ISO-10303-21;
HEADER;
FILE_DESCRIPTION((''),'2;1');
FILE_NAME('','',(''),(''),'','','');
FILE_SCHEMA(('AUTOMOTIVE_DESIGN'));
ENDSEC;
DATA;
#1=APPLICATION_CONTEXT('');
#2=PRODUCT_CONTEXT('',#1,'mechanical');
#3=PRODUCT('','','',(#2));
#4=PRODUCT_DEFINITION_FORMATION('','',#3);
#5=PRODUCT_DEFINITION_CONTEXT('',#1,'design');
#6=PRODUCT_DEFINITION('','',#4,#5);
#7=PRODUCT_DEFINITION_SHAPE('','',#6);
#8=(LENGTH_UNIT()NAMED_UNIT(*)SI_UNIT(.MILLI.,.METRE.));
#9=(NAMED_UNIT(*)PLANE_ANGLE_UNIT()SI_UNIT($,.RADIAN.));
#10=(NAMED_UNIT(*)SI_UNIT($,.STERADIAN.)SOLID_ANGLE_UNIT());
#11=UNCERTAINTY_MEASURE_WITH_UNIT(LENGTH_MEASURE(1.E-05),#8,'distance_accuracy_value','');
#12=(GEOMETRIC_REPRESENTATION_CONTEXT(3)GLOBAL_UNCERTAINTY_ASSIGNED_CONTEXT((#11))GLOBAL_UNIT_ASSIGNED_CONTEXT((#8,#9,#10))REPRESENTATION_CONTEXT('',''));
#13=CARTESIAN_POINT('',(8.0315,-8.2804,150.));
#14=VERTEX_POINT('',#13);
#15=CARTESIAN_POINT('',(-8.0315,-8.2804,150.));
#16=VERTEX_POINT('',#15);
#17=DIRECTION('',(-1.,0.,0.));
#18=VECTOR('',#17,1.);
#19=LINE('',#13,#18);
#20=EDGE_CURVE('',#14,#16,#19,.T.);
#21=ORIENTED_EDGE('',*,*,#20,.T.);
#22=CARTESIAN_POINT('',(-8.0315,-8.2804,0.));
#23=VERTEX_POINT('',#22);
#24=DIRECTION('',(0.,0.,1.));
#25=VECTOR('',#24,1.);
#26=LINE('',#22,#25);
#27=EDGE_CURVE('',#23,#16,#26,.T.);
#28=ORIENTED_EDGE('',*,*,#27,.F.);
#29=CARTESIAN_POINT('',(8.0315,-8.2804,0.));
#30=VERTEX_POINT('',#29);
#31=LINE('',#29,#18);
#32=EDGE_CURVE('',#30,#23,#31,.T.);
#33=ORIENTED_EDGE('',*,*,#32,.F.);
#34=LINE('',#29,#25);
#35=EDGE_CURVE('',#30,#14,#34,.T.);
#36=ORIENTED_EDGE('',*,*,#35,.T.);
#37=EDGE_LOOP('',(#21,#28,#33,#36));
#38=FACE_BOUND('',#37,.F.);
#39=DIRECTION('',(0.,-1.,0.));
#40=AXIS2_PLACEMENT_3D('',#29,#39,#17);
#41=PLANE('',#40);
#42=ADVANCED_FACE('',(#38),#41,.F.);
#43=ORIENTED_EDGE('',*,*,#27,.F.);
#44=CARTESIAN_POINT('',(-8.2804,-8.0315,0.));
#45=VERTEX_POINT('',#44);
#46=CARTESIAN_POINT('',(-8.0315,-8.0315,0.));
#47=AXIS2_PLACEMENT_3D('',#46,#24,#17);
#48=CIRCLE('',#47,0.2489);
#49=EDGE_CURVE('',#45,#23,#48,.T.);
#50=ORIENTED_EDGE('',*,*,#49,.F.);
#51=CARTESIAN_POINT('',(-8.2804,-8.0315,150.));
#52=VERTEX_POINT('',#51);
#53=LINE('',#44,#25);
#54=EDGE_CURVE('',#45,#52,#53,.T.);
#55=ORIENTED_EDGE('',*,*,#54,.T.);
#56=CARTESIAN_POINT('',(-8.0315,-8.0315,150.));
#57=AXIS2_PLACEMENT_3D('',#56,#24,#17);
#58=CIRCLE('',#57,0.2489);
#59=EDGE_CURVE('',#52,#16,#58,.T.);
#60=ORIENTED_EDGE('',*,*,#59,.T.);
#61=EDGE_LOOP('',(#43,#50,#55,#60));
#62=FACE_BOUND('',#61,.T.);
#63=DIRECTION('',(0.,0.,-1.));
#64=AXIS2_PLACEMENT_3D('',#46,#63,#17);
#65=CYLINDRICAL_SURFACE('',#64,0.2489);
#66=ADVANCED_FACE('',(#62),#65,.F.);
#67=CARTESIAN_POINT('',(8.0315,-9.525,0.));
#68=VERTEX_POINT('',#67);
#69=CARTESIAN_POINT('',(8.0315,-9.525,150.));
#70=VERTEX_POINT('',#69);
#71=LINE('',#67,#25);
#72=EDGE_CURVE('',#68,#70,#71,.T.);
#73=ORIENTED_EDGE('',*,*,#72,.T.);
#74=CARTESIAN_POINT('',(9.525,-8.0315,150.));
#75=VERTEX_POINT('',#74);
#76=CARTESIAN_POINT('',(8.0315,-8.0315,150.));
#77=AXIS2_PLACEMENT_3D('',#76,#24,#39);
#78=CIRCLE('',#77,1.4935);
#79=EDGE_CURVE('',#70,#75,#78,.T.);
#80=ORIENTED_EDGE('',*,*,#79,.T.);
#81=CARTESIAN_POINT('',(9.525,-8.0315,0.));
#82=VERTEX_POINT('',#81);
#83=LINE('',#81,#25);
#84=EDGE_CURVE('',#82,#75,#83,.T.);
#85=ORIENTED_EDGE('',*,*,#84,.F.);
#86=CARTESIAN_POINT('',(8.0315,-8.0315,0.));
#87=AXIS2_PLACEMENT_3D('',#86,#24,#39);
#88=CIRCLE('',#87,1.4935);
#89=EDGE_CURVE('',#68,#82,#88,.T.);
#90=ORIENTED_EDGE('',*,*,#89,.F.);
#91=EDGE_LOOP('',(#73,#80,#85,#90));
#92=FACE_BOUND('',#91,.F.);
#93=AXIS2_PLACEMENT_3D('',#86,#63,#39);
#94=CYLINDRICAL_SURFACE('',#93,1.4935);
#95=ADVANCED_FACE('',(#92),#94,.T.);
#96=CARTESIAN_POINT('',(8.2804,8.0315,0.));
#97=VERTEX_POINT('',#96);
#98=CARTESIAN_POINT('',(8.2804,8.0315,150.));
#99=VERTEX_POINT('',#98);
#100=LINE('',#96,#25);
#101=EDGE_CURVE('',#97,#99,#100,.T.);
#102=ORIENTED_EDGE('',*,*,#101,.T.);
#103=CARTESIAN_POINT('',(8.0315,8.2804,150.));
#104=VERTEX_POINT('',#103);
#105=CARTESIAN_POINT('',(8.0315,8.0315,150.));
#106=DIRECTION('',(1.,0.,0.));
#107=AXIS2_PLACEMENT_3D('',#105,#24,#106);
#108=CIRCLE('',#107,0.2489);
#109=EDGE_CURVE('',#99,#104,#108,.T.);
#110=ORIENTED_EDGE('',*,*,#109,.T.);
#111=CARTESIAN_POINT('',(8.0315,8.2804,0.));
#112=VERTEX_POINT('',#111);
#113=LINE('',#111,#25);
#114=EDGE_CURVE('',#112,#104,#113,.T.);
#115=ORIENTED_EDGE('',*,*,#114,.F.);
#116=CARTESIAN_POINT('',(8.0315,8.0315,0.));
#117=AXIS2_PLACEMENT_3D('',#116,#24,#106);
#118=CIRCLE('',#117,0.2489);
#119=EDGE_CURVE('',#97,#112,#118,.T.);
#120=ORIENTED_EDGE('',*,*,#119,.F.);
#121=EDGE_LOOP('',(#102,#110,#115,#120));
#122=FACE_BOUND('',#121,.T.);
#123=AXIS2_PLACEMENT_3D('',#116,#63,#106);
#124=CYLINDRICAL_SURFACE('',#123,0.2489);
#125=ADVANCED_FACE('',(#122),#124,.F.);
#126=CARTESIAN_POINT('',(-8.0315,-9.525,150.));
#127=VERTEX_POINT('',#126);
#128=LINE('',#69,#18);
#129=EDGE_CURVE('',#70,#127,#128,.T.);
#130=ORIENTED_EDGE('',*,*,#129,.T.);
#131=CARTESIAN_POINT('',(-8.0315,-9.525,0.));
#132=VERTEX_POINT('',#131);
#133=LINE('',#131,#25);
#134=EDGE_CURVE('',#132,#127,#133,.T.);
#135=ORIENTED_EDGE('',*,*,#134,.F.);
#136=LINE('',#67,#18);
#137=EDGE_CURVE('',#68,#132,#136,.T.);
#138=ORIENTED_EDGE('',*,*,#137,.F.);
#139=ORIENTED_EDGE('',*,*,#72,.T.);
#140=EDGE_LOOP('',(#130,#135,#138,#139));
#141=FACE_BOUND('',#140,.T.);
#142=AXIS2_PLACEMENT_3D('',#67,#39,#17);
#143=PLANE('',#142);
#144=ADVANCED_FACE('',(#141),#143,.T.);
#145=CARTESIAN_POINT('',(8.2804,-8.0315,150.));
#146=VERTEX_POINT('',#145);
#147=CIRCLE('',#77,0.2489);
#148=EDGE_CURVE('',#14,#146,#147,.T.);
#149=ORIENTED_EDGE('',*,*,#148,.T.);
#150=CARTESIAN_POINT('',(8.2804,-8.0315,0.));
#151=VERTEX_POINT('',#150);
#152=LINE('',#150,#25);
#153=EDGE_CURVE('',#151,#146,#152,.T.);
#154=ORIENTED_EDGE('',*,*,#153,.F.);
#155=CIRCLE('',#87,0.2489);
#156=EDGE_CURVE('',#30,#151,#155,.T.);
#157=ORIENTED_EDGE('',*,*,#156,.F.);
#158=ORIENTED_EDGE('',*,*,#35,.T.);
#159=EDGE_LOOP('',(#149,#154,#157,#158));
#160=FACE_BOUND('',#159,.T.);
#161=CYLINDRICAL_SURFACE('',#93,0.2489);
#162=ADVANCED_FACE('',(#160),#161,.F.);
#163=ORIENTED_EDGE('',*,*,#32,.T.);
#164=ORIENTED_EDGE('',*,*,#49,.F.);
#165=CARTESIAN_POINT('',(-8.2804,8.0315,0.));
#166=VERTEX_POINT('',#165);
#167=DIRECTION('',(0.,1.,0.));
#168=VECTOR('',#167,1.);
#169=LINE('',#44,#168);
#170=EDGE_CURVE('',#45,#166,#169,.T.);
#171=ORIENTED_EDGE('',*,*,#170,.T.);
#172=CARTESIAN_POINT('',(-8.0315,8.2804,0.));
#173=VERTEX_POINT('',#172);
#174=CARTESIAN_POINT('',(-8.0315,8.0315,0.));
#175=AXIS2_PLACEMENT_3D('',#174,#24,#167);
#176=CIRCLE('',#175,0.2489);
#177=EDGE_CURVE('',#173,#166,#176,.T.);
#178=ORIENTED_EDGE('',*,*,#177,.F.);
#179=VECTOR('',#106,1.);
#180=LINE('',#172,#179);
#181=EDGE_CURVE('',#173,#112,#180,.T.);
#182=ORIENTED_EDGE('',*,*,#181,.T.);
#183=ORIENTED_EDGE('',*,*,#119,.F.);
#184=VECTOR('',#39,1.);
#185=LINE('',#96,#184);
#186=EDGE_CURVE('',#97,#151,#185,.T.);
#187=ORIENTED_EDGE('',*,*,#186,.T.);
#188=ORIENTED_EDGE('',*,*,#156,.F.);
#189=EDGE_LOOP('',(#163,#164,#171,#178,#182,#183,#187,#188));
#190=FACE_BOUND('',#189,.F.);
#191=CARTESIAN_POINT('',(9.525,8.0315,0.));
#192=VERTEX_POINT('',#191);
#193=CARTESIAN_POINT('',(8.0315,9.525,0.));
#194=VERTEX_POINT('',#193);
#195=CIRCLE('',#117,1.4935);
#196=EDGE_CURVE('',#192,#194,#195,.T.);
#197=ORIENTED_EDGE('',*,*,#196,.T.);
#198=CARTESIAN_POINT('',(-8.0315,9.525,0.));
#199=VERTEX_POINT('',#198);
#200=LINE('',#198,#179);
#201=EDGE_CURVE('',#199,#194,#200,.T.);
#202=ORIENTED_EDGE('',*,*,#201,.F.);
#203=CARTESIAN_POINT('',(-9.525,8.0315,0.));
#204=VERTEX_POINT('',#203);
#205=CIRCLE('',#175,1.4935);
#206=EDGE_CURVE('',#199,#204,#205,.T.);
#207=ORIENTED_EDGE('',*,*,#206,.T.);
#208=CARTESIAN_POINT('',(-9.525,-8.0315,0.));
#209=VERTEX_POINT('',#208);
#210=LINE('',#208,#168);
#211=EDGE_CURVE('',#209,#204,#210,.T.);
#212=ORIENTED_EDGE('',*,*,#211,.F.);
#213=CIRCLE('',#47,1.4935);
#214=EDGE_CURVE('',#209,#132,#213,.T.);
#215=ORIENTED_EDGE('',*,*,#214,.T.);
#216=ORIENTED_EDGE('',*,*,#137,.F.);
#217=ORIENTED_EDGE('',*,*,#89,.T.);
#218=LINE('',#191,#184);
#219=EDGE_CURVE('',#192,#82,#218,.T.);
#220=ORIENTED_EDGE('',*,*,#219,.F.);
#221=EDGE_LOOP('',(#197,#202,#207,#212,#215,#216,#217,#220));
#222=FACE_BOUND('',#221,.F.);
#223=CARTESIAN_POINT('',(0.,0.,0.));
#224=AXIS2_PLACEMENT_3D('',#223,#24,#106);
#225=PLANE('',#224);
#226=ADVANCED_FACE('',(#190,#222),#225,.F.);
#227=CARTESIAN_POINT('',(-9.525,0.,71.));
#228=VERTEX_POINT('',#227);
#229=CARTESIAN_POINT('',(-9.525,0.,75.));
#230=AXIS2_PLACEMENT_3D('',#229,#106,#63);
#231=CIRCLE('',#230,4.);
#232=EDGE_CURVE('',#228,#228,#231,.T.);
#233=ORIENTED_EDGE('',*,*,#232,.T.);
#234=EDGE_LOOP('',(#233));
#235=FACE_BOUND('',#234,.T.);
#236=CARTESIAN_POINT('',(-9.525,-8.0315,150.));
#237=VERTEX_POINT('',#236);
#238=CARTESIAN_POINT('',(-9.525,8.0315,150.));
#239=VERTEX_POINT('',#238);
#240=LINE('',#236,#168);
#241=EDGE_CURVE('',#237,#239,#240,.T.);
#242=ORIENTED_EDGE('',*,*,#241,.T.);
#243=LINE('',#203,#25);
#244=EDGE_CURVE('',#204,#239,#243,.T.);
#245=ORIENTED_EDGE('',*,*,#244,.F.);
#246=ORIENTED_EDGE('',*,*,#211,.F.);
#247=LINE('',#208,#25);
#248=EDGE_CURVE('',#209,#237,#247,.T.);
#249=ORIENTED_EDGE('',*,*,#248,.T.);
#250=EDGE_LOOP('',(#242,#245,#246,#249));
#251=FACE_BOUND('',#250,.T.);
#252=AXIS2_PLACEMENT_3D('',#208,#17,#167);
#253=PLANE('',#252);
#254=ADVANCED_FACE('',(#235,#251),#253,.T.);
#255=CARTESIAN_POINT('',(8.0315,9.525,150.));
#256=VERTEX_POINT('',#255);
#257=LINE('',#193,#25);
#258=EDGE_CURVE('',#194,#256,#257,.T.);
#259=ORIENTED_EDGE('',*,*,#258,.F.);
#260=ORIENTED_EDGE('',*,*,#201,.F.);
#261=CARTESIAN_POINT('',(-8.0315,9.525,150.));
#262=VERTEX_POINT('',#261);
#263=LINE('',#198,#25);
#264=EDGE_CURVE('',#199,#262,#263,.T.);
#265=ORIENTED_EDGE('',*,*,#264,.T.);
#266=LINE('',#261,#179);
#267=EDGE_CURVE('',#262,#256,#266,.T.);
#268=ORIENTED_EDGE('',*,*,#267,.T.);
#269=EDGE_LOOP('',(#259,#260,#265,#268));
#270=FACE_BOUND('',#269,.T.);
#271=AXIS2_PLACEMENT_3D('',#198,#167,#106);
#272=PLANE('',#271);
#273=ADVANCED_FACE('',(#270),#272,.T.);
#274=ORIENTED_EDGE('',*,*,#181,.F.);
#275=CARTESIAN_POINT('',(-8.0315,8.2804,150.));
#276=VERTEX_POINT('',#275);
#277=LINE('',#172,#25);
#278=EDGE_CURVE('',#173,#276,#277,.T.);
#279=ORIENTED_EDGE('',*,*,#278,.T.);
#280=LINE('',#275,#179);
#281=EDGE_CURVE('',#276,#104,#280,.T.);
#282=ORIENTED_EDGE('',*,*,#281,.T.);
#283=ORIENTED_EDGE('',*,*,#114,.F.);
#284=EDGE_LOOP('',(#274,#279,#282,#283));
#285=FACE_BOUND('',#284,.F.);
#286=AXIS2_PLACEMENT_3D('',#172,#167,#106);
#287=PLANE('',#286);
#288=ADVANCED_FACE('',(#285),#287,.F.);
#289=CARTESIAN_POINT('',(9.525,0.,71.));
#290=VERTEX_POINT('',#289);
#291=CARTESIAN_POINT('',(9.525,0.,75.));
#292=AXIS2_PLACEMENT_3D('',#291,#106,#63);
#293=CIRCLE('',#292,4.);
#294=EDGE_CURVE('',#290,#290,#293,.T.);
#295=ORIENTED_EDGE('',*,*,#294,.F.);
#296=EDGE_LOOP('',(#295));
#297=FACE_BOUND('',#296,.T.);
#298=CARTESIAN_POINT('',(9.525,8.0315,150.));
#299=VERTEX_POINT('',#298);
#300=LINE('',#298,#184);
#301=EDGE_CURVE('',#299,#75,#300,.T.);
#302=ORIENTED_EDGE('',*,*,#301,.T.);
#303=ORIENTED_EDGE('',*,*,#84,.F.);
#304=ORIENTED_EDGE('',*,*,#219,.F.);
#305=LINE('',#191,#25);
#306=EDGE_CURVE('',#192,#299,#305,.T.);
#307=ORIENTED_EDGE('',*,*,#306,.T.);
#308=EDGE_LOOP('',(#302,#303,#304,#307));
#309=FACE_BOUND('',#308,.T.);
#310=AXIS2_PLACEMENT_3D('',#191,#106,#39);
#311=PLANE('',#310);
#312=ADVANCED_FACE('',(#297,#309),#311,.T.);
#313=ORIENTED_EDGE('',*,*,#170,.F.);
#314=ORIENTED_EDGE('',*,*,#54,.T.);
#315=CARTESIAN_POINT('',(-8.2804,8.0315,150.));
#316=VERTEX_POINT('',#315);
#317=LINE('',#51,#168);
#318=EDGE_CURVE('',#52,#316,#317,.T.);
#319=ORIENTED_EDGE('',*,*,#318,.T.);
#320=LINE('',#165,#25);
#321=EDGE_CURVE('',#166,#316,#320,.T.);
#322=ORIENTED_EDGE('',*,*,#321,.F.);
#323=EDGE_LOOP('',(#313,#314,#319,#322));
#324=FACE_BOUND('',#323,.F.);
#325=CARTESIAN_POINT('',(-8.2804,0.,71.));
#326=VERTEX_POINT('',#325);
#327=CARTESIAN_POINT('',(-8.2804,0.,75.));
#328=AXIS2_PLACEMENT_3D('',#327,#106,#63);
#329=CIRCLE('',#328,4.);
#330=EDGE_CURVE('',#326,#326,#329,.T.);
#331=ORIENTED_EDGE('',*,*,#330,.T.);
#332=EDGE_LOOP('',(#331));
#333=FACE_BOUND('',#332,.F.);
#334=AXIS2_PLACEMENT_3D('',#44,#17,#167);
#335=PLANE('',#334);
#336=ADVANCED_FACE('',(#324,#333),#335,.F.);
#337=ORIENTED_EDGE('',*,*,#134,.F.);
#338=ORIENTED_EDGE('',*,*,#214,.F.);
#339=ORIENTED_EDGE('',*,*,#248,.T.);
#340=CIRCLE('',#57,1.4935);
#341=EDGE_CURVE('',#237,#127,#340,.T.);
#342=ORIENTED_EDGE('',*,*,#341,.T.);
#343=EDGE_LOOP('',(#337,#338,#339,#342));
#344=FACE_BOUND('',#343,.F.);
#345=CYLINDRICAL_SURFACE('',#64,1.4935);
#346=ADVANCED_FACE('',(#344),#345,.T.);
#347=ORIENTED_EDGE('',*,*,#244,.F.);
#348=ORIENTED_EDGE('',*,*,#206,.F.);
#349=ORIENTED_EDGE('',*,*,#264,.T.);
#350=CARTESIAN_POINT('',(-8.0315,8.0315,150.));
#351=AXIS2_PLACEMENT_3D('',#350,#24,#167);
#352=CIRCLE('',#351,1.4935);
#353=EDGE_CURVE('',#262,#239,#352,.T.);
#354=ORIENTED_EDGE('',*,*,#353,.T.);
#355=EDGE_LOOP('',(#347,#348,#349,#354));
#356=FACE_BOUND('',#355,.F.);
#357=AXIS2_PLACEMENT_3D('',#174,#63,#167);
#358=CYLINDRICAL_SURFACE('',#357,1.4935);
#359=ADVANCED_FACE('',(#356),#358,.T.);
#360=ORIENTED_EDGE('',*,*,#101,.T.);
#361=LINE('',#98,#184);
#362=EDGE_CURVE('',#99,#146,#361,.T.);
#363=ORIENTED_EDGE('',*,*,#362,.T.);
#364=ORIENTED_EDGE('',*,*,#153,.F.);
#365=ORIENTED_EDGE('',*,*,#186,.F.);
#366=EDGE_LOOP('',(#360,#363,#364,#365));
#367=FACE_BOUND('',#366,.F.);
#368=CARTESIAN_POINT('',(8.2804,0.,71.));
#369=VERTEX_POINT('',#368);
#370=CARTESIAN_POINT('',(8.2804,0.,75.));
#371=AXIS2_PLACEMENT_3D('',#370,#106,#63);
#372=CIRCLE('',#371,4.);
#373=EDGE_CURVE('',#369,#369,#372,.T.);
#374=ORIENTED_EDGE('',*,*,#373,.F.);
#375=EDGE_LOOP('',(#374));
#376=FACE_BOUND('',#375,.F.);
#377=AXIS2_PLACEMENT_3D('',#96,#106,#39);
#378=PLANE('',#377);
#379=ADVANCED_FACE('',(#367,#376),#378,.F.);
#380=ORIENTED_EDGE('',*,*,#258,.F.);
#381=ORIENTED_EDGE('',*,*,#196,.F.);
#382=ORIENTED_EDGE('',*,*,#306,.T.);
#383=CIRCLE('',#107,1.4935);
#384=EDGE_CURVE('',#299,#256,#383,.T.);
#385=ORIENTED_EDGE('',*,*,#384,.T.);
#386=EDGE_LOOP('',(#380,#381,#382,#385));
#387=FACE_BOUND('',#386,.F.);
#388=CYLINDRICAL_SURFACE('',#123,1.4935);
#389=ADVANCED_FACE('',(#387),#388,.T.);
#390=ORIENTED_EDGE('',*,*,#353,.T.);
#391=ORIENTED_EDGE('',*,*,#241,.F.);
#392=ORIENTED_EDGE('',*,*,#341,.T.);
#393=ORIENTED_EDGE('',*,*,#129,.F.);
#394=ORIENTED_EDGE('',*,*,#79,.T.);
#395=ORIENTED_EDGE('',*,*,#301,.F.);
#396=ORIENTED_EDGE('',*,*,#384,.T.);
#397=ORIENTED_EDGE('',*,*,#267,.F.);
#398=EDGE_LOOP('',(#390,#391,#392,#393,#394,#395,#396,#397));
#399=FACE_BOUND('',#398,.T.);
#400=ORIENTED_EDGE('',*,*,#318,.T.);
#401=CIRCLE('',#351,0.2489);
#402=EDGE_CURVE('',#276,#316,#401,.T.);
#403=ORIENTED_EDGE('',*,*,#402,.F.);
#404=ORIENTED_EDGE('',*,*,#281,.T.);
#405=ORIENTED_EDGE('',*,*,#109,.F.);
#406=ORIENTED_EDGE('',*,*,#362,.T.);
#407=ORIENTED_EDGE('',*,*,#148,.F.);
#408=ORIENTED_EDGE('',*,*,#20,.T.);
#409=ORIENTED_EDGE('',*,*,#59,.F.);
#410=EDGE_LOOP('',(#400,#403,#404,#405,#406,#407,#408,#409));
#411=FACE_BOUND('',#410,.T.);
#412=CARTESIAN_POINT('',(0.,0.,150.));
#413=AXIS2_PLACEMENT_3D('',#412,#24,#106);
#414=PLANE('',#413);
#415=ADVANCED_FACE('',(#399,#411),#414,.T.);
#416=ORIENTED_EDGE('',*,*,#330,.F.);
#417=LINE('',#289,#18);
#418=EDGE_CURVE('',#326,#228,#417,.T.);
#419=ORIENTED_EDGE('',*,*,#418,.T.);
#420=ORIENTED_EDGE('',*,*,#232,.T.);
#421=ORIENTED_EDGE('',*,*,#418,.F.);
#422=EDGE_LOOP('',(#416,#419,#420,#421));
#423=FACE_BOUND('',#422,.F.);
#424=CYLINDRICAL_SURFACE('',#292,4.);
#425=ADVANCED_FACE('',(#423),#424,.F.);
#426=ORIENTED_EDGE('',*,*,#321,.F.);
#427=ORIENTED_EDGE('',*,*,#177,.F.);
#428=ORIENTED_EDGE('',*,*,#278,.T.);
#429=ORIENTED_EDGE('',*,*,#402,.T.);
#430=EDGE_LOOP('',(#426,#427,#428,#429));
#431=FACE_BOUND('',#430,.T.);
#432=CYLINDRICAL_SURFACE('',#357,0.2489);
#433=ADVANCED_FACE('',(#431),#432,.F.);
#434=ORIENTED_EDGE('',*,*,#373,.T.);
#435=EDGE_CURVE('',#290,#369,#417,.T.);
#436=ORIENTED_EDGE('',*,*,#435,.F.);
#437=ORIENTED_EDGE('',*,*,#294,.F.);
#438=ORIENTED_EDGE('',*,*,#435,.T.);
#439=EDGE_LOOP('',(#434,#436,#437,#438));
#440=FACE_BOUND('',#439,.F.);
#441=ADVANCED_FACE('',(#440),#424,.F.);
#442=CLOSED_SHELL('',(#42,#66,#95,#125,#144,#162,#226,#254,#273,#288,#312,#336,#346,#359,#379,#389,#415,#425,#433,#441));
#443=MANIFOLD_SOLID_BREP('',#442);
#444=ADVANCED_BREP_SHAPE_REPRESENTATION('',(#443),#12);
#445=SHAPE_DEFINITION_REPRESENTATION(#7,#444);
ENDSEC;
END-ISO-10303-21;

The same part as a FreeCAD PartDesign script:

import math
import FreeCAD as App
import Part
import Sketcher
from FreeCAD import Vector
Q = App.Units.Quantity

doc = App.newDocument("Part")
params = doc.addObject("Spreadsheet::Sheet", "Params")
for row, (alias, value) in enumerate([
    ("pad1_length", "150 mm"),
    ("sketch2_diameter", "8 mm"),
    ("pocket1_length", "25.4 mm"),
], start=1):
    params.set(f"A{row}", alias)
    params.set(f"B{row}", "=" + value)
    params.setAlias(f"B{row}", alias)

body = doc.addObject("PartDesign::Body", "Body")

# Sketch on XY plane
sketch1 = body.newObject("Sketcher::SketchObject", "Sketch")
sketch1.AttachmentSupport = (doc.getObject("XY_Plane"), [""])
sketch1.MapMode = "FlatFace"
sketch1.addGeometry([
    Part.LineSegment(Vector(-9.525, 8.0315, 0), Vector(-9.525, -8.0315, 0)),  # 0
    Part.ArcOfCircle(Part.Circle(Vector(-8.0315, -8.0315, 0), Vector(0, 0, 1), 1.4935), math.radians(180), math.radians(270)),  # 1
    Part.LineSegment(Vector(-8.0315, -9.525, 0), Vector(8.0315, -9.525, 0)),  # 2
    Part.ArcOfCircle(Part.Circle(Vector(8.0315, -8.0315, 0), Vector(0, 0, 1), 1.4935), math.radians(-90), math.radians(0)),  # 3
    Part.LineSegment(Vector(9.525, -8.0315, 0), Vector(9.525, 8.0315, 0)),  # 4
    Part.ArcOfCircle(Part.Circle(Vector(8.0315, 8.0315, 0), Vector(0, 0, 1), 1.4935), math.radians(0), math.radians(90)),  # 5
    Part.LineSegment(Vector(8.0315, 9.525, 0), Vector(-8.0315, 9.525, 0)),  # 6
    Part.ArcOfCircle(Part.Circle(Vector(-8.0315, 8.0315, 0), Vector(0, 0, 1), 1.4935), math.radians(90), math.radians(180)),  # 7
    Part.ArcOfCircle(Part.Circle(Vector(-8.0315, 8.0315, 0), Vector(0, 0, 1), 0.2489), math.radians(90), math.radians(180)),  # 8
    Part.LineSegment(Vector(-8.0315, 8.2804, 0), Vector(8.0315, 8.2804, 0)),  # 9
    Part.ArcOfCircle(Part.Circle(Vector(8.0315, 8.0315, 0), Vector(0, 0, 1), 0.2489), math.radians(0), math.radians(90)),  # 10
    Part.LineSegment(Vector(8.2804, 8.0315, 0), Vector(8.2804, -8.0315, 0)),  # 11
    Part.ArcOfCircle(Part.Circle(Vector(8.0315, -8.0315, 0), Vector(0, 0, 1), 0.2489), math.radians(-90), math.radians(0)),  # 12
    Part.LineSegment(Vector(8.0315, -8.2804, 0), Vector(-8.0315, -8.2804, 0)),  # 13
    Part.ArcOfCircle(Part.Circle(Vector(-8.0315, -8.0315, 0), Vector(0, 0, 1), 0.2489), math.radians(180), math.radians(270)),  # 14
    Part.LineSegment(Vector(-8.2804, -8.0315, 0), Vector(-8.2804, 8.0315, 0)),  # 15
], False)
sketch1.addConstraint([
    Sketcher.Constraint("Tangent", 0, 2, 1, 1),
    Sketcher.Constraint("Tangent", 1, 2, 2, 1),
    Sketcher.Constraint("Tangent", 2, 2, 3, 1),
    Sketcher.Constraint("Tangent", 3, 2, 4, 1),
    Sketcher.Constraint("Tangent", 4, 2, 5, 1),
    Sketcher.Constraint("Tangent", 5, 2, 6, 1),
    Sketcher.Constraint("Tangent", 6, 2, 7, 1),
    Sketcher.Constraint("Tangent", 7, 2, 0, 1),
    Sketcher.Constraint("Tangent", 8, 1, 9, 1),
    Sketcher.Constraint("Tangent", 9, 2, 10, 2),
    Sketcher.Constraint("Tangent", 10, 1, 11, 1),
    Sketcher.Constraint("Tangent", 11, 2, 12, 2),
    Sketcher.Constraint("Tangent", 12, 1, 13, 1),
    Sketcher.Constraint("Tangent", 13, 2, 14, 2),
    Sketcher.Constraint("Tangent", 14, 1, 15, 1),
    Sketcher.Constraint("Tangent", 15, 2, 8, 2),
    Sketcher.Constraint("Vertical", 0),
    Sketcher.Constraint("Horizontal", 2),
    Sketcher.Constraint("Vertical", 4),
    Sketcher.Constraint("Horizontal", 6),
    Sketcher.Constraint("Horizontal", 9),
    Sketcher.Constraint("Vertical", 11),
    Sketcher.Constraint("Horizontal", 13),
    Sketcher.Constraint("Vertical", 15),
    Sketcher.Constraint("Coincident", 8, 3, 7, 3),
    Sketcher.Constraint("Coincident", 10, 3, 5, 3),
    Sketcher.Constraint("Coincident", 12, 3, 3, 3),
    Sketcher.Constraint("Equal", 1, 3),
    Sketcher.Constraint("Equal", 3, 5),
    Sketcher.Constraint("Equal", 5, 7),
    Sketcher.Constraint("Equal", 12, 14),
    Sketcher.Constraint("Symmetric", 1, 3, 5, 3, -1, 1),
    Sketcher.Constraint("Equal", 13, 0),
    Sketcher.Constraint("Radius", 1, Q("1.4935 mm")),
    Sketcher.Constraint("DistanceX", 0, 2, -1, 1, Q("9.525 mm")),
    Sketcher.Constraint("Radius", 8, Q("0.249 mm")),
])
pad1 = body.newObject("PartDesign::Pad", "Pad")
pad1.Profile = sketch1
pad1.setExpression("Length", "Params.pad1_length")

# Sketch on YZ plane
sketch2 = body.newObject("Sketcher::SketchObject", "Sketch001")
sketch2.AttachmentSupport = (doc.getObject("YZ_Plane"), [""])
sketch2.MapMode = "FlatFace"
sketch2.AttachmentOffset = App.Placement(Vector(0, 0, 9.525), App.Rotation())
sketch2.addGeometry(Part.Circle(Vector(0, 75, 0), Vector(0, 0, 1), 4), False)
sketch2.addConstraint([
    Sketcher.Constraint("PointOnObject", 0, 3, -2),
    Sketcher.Constraint("Diameter", 0, Q("8 mm")),
    Sketcher.Constraint("DistanceY", -1, 1, 0, 3, Q("75 mm")),
])
sketch2.setExpression("Constraints[1]", "Params.sketch2_diameter")
pocket1 = body.newObject("PartDesign::Pocket", "Pocket")
pocket1.Profile = sketch2
pocket1.setExpression("Length", "Params.pocket1_length")

doc.recompute()
